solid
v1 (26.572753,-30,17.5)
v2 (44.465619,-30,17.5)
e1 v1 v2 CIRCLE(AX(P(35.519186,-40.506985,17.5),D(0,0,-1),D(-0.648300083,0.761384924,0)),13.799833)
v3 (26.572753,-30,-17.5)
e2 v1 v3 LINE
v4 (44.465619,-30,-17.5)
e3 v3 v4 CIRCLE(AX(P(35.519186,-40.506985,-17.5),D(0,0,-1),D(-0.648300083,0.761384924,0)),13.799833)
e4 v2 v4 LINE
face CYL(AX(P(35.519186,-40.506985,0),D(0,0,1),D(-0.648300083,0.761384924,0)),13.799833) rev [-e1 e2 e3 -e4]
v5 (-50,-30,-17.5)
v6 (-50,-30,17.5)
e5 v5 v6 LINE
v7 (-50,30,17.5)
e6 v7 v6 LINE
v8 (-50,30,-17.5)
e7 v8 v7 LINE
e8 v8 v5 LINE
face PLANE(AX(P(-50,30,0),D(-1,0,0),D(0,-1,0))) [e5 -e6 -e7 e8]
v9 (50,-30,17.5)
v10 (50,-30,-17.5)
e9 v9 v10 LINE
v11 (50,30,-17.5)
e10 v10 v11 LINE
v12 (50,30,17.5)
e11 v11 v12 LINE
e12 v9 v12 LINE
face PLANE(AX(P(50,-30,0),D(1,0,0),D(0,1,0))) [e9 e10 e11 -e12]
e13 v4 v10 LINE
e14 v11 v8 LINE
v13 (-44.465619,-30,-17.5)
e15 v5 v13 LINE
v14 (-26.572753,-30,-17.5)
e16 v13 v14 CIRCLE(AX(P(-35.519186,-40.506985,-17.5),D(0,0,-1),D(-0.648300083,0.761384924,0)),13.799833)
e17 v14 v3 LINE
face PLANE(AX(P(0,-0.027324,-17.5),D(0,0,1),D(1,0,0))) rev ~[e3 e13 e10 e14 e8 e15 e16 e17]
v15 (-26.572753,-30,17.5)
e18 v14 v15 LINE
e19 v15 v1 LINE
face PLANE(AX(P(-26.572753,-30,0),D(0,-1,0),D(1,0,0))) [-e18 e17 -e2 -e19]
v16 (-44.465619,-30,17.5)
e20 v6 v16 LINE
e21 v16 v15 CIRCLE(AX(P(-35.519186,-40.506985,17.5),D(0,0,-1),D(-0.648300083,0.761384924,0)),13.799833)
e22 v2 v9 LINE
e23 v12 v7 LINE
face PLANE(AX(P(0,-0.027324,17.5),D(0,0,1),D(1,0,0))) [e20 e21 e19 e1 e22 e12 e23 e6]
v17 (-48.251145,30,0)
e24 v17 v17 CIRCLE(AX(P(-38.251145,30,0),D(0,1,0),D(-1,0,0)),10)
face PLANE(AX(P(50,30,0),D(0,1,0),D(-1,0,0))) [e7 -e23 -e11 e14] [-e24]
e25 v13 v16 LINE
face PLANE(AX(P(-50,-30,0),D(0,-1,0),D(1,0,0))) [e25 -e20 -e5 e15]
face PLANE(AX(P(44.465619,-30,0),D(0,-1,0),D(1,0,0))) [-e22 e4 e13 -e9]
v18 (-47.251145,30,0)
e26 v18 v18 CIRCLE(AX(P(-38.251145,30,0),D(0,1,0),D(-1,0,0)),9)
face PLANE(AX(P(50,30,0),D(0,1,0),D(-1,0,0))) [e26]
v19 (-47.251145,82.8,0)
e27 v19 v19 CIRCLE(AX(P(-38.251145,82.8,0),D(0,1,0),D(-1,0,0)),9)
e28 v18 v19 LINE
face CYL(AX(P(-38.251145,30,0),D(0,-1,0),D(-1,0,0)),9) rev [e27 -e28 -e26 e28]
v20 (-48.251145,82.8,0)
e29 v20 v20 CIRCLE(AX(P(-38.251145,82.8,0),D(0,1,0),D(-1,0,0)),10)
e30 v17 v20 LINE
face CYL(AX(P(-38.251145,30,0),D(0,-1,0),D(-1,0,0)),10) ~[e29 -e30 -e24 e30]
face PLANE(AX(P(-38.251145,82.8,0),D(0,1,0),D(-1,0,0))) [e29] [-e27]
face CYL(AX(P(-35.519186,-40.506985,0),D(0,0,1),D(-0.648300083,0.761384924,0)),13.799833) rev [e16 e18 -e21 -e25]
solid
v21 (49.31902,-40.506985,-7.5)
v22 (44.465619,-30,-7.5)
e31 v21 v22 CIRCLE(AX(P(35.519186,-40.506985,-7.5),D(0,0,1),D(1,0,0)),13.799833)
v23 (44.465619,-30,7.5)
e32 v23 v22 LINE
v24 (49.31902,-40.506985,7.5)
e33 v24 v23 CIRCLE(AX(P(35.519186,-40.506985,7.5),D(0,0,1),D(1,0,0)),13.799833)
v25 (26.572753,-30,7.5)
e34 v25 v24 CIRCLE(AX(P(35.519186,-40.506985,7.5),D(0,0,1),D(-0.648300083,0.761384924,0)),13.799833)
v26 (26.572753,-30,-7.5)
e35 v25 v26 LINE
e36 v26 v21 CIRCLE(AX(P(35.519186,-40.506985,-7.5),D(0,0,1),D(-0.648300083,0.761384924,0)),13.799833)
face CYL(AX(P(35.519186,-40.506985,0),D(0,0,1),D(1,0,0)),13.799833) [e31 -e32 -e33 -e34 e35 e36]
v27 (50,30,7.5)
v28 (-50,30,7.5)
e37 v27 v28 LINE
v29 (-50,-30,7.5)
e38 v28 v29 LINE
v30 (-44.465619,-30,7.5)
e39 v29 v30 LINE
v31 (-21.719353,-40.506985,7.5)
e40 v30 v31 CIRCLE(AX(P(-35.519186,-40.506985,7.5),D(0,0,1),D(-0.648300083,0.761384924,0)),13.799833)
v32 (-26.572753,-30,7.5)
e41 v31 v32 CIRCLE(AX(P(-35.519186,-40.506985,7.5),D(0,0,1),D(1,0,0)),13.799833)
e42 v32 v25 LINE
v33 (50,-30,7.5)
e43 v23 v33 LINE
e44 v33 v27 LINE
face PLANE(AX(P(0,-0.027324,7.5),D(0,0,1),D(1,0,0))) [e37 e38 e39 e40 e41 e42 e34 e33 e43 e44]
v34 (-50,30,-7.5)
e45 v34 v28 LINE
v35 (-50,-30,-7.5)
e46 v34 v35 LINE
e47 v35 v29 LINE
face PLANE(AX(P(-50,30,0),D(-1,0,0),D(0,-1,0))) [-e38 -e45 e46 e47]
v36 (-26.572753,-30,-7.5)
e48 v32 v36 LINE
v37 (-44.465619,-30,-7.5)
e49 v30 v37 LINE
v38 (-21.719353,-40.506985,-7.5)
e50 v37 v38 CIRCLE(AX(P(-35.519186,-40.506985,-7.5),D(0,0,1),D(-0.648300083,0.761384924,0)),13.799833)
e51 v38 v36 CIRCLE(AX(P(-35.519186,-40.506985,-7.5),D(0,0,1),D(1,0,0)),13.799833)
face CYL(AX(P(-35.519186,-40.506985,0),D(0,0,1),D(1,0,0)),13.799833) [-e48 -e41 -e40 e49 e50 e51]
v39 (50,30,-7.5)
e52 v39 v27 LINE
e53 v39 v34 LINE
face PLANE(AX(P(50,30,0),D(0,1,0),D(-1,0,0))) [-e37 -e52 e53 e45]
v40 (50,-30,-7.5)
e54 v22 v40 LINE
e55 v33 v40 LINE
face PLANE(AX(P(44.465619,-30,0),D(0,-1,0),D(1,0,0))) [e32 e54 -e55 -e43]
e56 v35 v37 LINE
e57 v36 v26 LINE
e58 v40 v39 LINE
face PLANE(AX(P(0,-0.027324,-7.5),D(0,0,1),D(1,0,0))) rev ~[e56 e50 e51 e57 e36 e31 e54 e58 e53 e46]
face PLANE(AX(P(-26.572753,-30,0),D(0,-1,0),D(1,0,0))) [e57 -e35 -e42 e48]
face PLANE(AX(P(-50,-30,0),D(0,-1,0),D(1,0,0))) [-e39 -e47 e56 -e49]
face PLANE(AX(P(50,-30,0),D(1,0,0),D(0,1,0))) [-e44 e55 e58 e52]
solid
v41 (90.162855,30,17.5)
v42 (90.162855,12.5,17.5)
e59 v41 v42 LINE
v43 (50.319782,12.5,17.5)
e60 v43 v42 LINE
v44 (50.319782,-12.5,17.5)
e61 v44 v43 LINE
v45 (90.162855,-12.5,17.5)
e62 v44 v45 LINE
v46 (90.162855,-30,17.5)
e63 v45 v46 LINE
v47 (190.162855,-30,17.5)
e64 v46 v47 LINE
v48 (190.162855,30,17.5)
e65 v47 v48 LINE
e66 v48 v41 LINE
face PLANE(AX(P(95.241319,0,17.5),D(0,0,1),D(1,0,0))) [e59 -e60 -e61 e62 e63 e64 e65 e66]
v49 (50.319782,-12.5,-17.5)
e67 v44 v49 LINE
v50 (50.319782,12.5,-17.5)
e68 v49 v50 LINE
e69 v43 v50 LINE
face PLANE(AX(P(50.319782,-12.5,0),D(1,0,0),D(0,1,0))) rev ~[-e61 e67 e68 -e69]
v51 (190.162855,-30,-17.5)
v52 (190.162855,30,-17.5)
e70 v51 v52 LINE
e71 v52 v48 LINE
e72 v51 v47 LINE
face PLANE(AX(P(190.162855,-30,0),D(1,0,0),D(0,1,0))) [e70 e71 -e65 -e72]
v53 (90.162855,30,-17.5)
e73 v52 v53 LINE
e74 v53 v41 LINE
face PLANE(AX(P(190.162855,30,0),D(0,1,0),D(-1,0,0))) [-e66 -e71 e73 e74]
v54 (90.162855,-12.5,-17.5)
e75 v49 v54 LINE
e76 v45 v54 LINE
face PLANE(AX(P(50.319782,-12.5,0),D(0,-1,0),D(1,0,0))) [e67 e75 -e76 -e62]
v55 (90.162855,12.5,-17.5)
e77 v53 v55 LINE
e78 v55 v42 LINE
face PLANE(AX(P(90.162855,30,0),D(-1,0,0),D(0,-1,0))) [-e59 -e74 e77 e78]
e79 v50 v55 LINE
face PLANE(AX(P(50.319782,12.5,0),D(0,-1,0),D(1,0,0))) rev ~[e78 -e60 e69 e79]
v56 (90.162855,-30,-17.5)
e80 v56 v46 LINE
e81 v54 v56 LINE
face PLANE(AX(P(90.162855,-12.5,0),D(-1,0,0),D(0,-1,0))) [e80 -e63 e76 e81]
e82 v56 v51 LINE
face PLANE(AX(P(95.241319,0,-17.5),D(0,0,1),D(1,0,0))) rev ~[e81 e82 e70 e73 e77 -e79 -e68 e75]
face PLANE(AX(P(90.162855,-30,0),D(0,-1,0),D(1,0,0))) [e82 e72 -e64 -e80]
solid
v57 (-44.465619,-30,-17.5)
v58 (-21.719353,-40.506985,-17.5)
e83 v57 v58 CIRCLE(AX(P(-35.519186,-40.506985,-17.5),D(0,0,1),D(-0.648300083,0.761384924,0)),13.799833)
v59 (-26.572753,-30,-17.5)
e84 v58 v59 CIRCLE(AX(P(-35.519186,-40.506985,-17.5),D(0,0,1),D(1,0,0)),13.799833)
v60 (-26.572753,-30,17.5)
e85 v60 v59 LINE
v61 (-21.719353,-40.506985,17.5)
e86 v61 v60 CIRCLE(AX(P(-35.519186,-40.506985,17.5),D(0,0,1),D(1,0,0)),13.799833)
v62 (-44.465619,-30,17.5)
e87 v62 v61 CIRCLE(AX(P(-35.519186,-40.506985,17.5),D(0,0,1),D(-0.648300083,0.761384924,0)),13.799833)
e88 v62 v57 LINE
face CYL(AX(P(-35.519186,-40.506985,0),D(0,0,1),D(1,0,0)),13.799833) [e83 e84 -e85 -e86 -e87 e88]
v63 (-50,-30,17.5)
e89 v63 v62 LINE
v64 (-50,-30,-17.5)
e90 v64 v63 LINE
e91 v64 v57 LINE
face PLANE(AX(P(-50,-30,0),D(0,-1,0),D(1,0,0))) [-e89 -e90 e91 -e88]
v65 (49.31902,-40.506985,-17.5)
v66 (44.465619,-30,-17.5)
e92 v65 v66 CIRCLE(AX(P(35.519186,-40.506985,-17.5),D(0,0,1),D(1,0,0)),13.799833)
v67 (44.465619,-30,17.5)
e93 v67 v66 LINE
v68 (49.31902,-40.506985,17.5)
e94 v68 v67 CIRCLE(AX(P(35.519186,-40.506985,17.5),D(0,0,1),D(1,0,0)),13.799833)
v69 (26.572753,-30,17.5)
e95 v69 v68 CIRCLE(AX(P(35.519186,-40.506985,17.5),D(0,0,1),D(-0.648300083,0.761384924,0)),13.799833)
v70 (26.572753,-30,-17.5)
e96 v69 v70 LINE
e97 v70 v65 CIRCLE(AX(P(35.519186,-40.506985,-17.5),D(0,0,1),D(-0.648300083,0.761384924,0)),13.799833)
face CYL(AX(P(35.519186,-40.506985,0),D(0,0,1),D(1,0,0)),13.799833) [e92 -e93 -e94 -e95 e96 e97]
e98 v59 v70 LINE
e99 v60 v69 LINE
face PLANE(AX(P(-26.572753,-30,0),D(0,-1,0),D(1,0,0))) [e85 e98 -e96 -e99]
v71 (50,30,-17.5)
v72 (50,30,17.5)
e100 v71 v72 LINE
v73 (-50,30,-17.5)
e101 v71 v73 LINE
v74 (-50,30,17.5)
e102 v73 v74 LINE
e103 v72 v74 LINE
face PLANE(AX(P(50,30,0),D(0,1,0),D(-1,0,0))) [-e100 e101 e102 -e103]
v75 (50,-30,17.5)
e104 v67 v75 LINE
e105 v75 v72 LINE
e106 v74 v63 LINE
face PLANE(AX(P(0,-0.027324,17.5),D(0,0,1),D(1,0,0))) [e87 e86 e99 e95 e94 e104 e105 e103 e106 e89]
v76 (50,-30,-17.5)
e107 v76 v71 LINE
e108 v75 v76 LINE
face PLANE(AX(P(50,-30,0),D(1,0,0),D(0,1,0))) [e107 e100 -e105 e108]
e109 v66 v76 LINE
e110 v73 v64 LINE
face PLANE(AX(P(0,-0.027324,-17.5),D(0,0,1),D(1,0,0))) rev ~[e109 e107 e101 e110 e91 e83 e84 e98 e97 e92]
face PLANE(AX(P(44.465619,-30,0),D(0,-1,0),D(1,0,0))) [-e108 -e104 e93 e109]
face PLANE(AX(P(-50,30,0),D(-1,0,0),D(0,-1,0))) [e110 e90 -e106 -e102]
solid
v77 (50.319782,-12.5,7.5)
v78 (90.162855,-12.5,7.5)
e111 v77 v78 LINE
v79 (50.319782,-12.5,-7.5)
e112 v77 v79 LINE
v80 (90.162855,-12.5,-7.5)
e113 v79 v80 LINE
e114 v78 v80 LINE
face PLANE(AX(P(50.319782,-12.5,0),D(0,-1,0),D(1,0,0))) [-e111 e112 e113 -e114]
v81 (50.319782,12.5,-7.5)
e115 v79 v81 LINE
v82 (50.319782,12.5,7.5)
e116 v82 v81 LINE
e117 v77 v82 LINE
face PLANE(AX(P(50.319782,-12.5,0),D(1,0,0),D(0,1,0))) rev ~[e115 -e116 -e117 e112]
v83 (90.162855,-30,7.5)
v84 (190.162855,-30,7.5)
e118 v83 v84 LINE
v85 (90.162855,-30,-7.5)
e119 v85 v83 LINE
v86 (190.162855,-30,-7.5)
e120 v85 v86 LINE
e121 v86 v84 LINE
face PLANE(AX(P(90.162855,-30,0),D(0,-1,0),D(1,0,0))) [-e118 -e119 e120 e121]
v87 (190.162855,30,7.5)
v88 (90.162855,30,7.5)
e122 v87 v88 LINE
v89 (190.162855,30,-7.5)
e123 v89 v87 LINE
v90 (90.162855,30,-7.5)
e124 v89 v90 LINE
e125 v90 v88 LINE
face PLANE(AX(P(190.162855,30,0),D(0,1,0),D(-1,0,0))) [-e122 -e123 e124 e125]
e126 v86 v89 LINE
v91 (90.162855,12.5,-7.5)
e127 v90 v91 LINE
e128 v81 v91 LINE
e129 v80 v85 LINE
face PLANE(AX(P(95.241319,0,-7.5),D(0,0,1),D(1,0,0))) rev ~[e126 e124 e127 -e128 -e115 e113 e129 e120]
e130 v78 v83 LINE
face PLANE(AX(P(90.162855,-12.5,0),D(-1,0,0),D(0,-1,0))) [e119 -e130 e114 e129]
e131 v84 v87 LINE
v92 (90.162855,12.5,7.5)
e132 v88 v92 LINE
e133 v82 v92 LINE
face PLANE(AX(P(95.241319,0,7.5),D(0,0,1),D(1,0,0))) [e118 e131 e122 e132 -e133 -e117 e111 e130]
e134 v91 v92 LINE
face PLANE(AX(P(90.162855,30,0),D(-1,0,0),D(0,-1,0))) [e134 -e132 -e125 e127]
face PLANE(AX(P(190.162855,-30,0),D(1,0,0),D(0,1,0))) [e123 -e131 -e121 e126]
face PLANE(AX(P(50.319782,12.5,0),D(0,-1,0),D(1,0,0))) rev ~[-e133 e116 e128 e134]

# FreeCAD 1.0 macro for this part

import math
import FreeCAD as App
import Part
import Sketcher

V = App.Vector

doc = App.newDocument("Part")
body = doc.addObject("PartDesign::Body", "Body")

# Sketch on XY plane
sketch1 = doc.addObject("Sketcher::SketchObject", "Sketch")
body.addObject(sketch1)
sketch1.AttachmentSupport = (doc.XY_Plane, [""])
sketch1.MapMode = "FlatFace"
sketch1.addGeometry([
    Part.LineSegment(V(50, -30, 0), V(50, 30, 0)),  # 0
    Part.LineSegment(V(50, 30, 0), V(-50, 30, 0)),  # 1
    Part.LineSegment(V(-50, 30, 0), V(-50, -30, 0)),  # 2
    Part.LineSegment(V(-50, -30, 0), V(-44, -30, 0)),  # 3
    Part.ArcOfCircle(Part.Circle(V(-36, -41, 0), V(0, 0, 1), 14), math.radians(50), math.radians(130)),  # 4
    Part.LineSegment(V(-27, -30, 0), V(27, -30, 0)),  # 5
    Part.ArcOfCircle(Part.Circle(V(36, -41, 0), V(0, 0, 1), 14), math.radians(50), math.radians(130)),  # 6
    Part.LineSegment(V(44, -30, 0), V(50, -30, 0)),  # 7
], False)
sketch1.addConstraint([
    Sketcher.Constraint("Coincident", 0, 2, 1, 1),
    Sketcher.Constraint("Coincident", 1, 2, 2, 1),
    Sketcher.Constraint("Coincident", 2, 2, 3, 1),
    Sketcher.Constraint("Coincident", 3, 2, 4, 2),
    Sketcher.Constraint("Coincident", 4, 1, 5, 1),
    Sketcher.Constraint("Coincident", 5, 2, 6, 2),
    Sketcher.Constraint("Coincident", 6, 1, 7, 1),
    Sketcher.Constraint("Coincident", 7, 2, 0, 1),
    Sketcher.Constraint("Vertical", 0),
    Sketcher.Constraint("Horizontal", 1),
    Sketcher.Constraint("Vertical", 2),
    Sketcher.Constraint("Horizontal", 3),
    Sketcher.Constraint("Horizontal", 5),
    Sketcher.Constraint("Horizontal", 7),
    Sketcher.Constraint("Equal", 4, 6),
    Sketcher.Constraint("Symmetric", 0, 2, 2, 2, -1, 1),
    Sketcher.Constraint("Symmetric", 4, 3, 6, 3, -2),
    Sketcher.Constraint("Horizontal", 3, 2, 4, 1),
    Sketcher.Constraint("Horizontal", 5, 2, 6, 1),
    Sketcher.Constraint("DistanceX", 1, 2, 1, 1, 100.0),
    Sketcher.Constraint("DistanceY", 0, 1, 0, 2, 60.0),
    Sketcher.Constraint("Radius", 4, 13.799833),
    Sketcher.Constraint("DistanceX", 3, 1, 3, 2, 5.534381),
    Sketcher.Constraint("DistanceX", 5, 1, 5, 2, 53.145507),
])
pad1 = doc.addObject("PartDesign::Pad", "Pad")
body.addObject(pad1)
pad1.Profile = sketch1
pad1.Length = 35
pad1.Midplane = True

# Sketch on XZ plane
sketch2 = doc.addObject("Sketcher::SketchObject", "Sketch001")
body.addObject(sketch2)
sketch2.AttachmentSupport = (doc.XZ_Plane, [""])
sketch2.MapMode = "FlatFace"
sketch2.AttachmentOffset = App.Placement(V(0, 0, -30), App.Rotation())
sketch2.addGeometry([
    Part.Circle(V(-38, 0, 0), V(0, 0, 1), 10),
    Part.Circle(V(-38, 0, 0), V(0, 0, 1), 9),
], False)
sketch2.addConstraint([
    Sketcher.Constraint("Coincident", 1, 3, 0, 3),
    Sketcher.Constraint("PointOnObject", 0, 3, -1),
    Sketcher.Constraint("Diameter", 0, 20.0),
    Sketcher.Constraint("Diameter", 1, 18.0),
    Sketcher.Constraint("DistanceX", 0, 3, -1, 1, 38.251145),
])
pad2 = doc.addObject("PartDesign::Pad", "Pad001")
body.addObject(pad2)
pad2.Profile = sketch2
pad2.Length = 52.8
pad2.Reversed = True
body2 = doc.addObject("PartDesign::Body", "Body001")

# Sketch on XY plane
sketch3 = doc.addObject("Sketcher::SketchObject", "Sketch002")
body2.addObject(sketch3)
sketch3.AttachmentSupport = (doc.getObject("XY_Plane001"), [""])
sketch3.MapMode = "FlatFace"
sketch3.addGeometry([
    Part.LineSegment(V(50, -30, 0), V(50, 30, 0)),  # 0
    Part.LineSegment(V(50, 30, 0), V(-50, 30, 0)),  # 1
    Part.LineSegment(V(-50, 30, 0), V(-50, -30, 0)),  # 2
    Part.LineSegment(V(-50, -30, 0), V(-44, -30, 0)),  # 3
    Part.ArcOfCircle(Part.Circle(V(-36, -41, 0), V(0, 0, 1), 14), math.radians(130), math.radians(360)),  # 4
    Part.ArcOfCircle(Part.Circle(V(-36, -41, 0), V(0, 0, 1), 14), math.radians(0), math.radians(50)),  # 5
    Part.LineSegment(V(-27, -30, 0), V(27, -30, 0)),  # 6
    Part.ArcOfCircle(Part.Circle(V(36, -41, 0), V(0, 0, 1), 14), math.radians(130), math.radians(360)),  # 7
    Part.ArcOfCircle(Part.Circle(V(36, -41, 0), V(0, 0, 1), 14), math.radians(0), math.radians(50)),  # 8
    Part.LineSegment(V(44, -30, 0), V(50, -30, 0)),  # 9
], False)
sketch3.addConstraint([
    Sketcher.Constraint("Coincident", 0, 2, 1, 1),
    Sketcher.Constraint("Coincident", 1, 2, 2, 1),
    Sketcher.Constraint("Coincident", 2, 2, 3, 1),
    Sketcher.Constraint("Coincident", 3, 2, 4, 1),
    Sketcher.Constraint("Tangent", 4, 2, 5, 1),
    Sketcher.Constraint("Coincident", 5, 2, 6, 1),
    Sketcher.Constraint("Coincident", 6, 2, 7, 1),
    Sketcher.Constraint("Tangent", 7, 2, 8, 1),
    Sketcher.Constraint("Coincident", 8, 2, 9, 1),
    Sketcher.Constraint("Coincident", 9, 2, 0, 1),
    Sketcher.Constraint("Vertical", 0),
    Sketcher.Constraint("Horizontal", 1),
    Sketcher.Constraint("Vertical", 2),
    Sketcher.Constraint("Horizontal", 3),
    Sketcher.Constraint("Horizontal", 6),
    Sketcher.Constraint("Horizontal", 9),
    Sketcher.Constraint("Equal", 4, 5),
    Sketcher.Constraint("Equal", 5, 7),
    Sketcher.Constraint("Equal", 7, 8),
    Sketcher.Constraint("Symmetric", 0, 2, 2, 2, -1, 1),
    Sketcher.Constraint("Symmetric", 4, 3, 7, 3, -2),
    Sketcher.Constraint("Horizontal", 8, 3, 4, 2),
    Sketcher.Constraint("Horizontal", 3, 2, 5, 2),
    Sketcher.Constraint("Horizontal", 4, 2, 7, 2),
    Sketcher.Constraint("Horizontal", 6, 2, 8, 2),
    Sketcher.Constraint("DistanceX", 1, 2, 1, 1, 100.0),
    Sketcher.Constraint("DistanceY", 0, 1, 0, 2, 60.0),
    Sketcher.Constraint("Radius", 4, 13.799833),
    Sketcher.Constraint("DistanceX", 3, 1, 3, 2, 5.534381),
    Sketcher.Constraint("DistanceX", 5, 2, 4, 2, 4.8534),
])
pad3 = doc.addObject("PartDesign::Pad", "Pad002")
body2.addObject(pad3)
pad3.Profile = sketch3
pad3.Length = 15
pad3.Midplane = True
body3 = doc.addObject("PartDesign::Body", "Body002")

# Sketch on XY plane
sketch4 = doc.addObject("Sketcher::SketchObject", "Sketch003")
body3.addObject(sketch4)
sketch4.AttachmentSupport = (doc.getObject("XY_Plane002"), [""])
sketch4.MapMode = "FlatFace"
sketch4.addGeometry([
    Part.LineSegment(V(90, -12, 0), V(90, -30, 0)),  # 0
    Part.LineSegment(V(90, -30, 0), V(190, -30, 0)),  # 1
    Part.LineSegment(V(190, -30, 0), V(190, 30, 0)),  # 2
    Part.LineSegment(V(190, 30, 0), V(90, 30, 0)),  # 3
    Part.LineSegment(V(90, 30, 0), V(90, 12, 0)),  # 4
    Part.LineSegment(V(90, 12, 0), V(50, 12, 0)),  # 5
    Part.LineSegment(V(50, 12, 0), V(50, -12, 0)),  # 6
    Part.LineSegment(V(50, -12, 0), V(90, -12, 0)),  # 7
], False)
sketch4.addConstraint([
    Sketcher.Constraint("Coincident", 0, 2, 1, 1),
    Sketcher.Constraint("Coincident", 1, 2, 2, 1),
    Sketcher.Constraint("Coincident", 2, 2, 3, 1),
    Sketcher.Constraint("Coincident", 3, 2, 4, 1),
    Sketcher.Constraint("Coincident", 4, 2, 5, 1),
    Sketcher.Constraint("Coincident", 5, 2, 6, 1),
    Sketcher.Constraint("Coincident", 6, 2, 7, 1),
    Sketcher.Constraint("Coincident", 7, 2, 0, 1),
    Sketcher.Constraint("Vertical", 0),
    Sketcher.Constraint("Horizontal", 1),
    Sketcher.Constraint("Vertical", 2),
    Sketcher.Constraint("Horizontal", 3),
    Sketcher.Constraint("Vertical", 4),
    Sketcher.Constraint("Horizontal", 5),
    Sketcher.Constraint("Vertical", 6),
    Sketcher.Constraint("Horizontal", 7),
    Sketcher.Constraint("Symmetric", 0, 2, 3, 2, -1),
    Sketcher.Constraint("Equal", 0, 4),
    Sketcher.Constraint("DistanceX", 1, 1, 1, 2, 100.0),
    Sketcher.Constraint("DistanceY", 2, 1, 2, 2, 60.0),
    Sketcher.Constraint("DistanceY", 6, 2, 6, 1, 25.0),
    Sketcher.Constraint("DistanceX", 5, 2, 5, 1, 39.843073),
    Sketcher.Constraint("DistanceX", -1, 1, 5, 2, 50.319782),
])
pad4 = doc.addObject("PartDesign::Pad", "Pad003")
body3.addObject(pad4)
pad4.Profile = sketch4
pad4.Length = 15
pad4.Midplane = True
body4 = doc.addObject("PartDesign::Body", "Body003")

# Sketch on XY plane
sketch5 = doc.addObject("Sketcher::SketchObject", "Sketch004")
body4.addObject(sketch5)
sketch5.AttachmentSupport = (doc.getObject("XY_Plane003"), [""])
sketch5.MapMode = "FlatFace"
sketch5.addGeometry([
    Part.LineSegment(V(50, -30, 0), V(50, 30, 0)),  # 0
    Part.LineSegment(V(50, 30, 0), V(-50, 30, 0)),  # 1
    Part.LineSegment(V(-50, 30, 0), V(-50, -30, 0)),  # 2
    Part.LineSegment(V(-50, -30, 0), V(-44, -30, 0)),  # 3
    Part.ArcOfCircle(Part.Circle(V(-36, -41, 0), V(0, 0, 1), 14), math.radians(130), math.radians(360)),  # 4
    Part.ArcOfCircle(Part.Circle(V(-36, -41, 0), V(0, 0, 1), 14), math.radians(0), math.radians(50)),  # 5
    Part.LineSegment(V(-27, -30, 0), V(27, -30, 0)),  # 6
    Part.ArcOfCircle(Part.Circle(V(36, -41, 0), V(0, 0, 1), 14), math.radians(130), math.radians(360)),  # 7
    Part.ArcOfCircle(Part.Circle(V(36, -41, 0), V(0, 0, 1), 14), math.radians(0), math.radians(50)),  # 8
    Part.LineSegment(V(44, -30, 0), V(50, -30, 0)),  # 9
], False)
sketch5.addConstraint([
    Sketcher.Constraint("Coincident", 0, 2, 1, 1),
    Sketcher.Constraint("Coincident", 1, 2, 2, 1),
    Sketcher.Constraint("Coincident", 2, 2, 3, 1),
    Sketcher.Constraint("Coincident", 3, 2, 4, 1),
    Sketcher.Constraint("Tangent", 4, 2, 5, 1),
    Sketcher.Constraint("Coincident", 5, 2, 6, 1),
    Sketcher.Constraint("Coincident", 6, 2, 7, 1),
    Sketcher.Constraint("Tangent", 7, 2, 8, 1),
    Sketcher.Constraint("Coincident", 8, 2, 9, 1),
    Sketcher.Constraint("Coincident", 9, 2, 0, 1),
    Sketcher.Constraint("Vertical", 0),
    Sketcher.Constraint("Horizontal", 1),
    Sketcher.Constraint("Vertical", 2),
    Sketcher.Constraint("Horizontal", 3),
    Sketcher.Constraint("Horizontal", 6),
    Sketcher.Constraint("Horizontal", 9),
    Sketcher.Constraint("Equal", 4, 5),
    Sketcher.Constraint("Equal", 5, 7),
    Sketcher.Constraint("Equal", 7, 8),
    Sketcher.Constraint("Symmetric", 0, 2, 2, 2, -1, 1),
    Sketcher.Constraint("Symmetric", 4, 3, 7, 3, -2),
    Sketcher.Constraint("Horizontal", 8, 3, 4, 2),
    Sketcher.Constraint("Horizontal", 3, 2, 5, 2),
    Sketcher.Constraint("Horizontal", 4, 2, 7, 2),
    Sketcher.Constraint("Horizontal", 6, 2, 8, 2),
    Sketcher.Constraint("DistanceX", 1, 2, 1, 1, 100.0),
    Sketcher.Constraint("DistanceY", 0, 1, 0, 2, 60.0),
    Sketcher.Constraint("Radius", 4, 13.799833),
    Sketcher.Constraint("DistanceX", 3, 1, 3, 2, 5.534381),
    Sketcher.Constraint("DistanceX", 5, 2, 4, 2, 4.8534),
])
pad5 = doc.addObject("PartDesign::Pad", "Pad004")
body4.addObject(pad5)
pad5.Profile = sketch5
pad5.Length = 35
pad5.Midplane = True
body5 = doc.addObject("PartDesign::Body", "Body004")

# Sketch on XY plane
sketch6 = doc.addObject("Sketcher::SketchObject", "Sketch005")
body5.addObject(sketch6)
sketch6.AttachmentSupport = (doc.getObject("XY_Plane004"), [""])
sketch6.MapMode = "FlatFace"
sketch6.addGeometry([
    Part.LineSegment(V(90, -12, 0), V(90, -30, 0)),  # 0
    Part.LineSegment(V(90, -30, 0), V(190, -30, 0)),  # 1
    Part.LineSegment(V(190, -30, 0), V(190, 30, 0)),  # 2
    Part.LineSegment(V(190, 30, 0), V(90, 30, 0)),  # 3
    Part.LineSegment(V(90, 30, 0), V(90, 12, 0)),  # 4
    Part.LineSegment(V(90, 12, 0), V(50, 12, 0)),  # 5
    Part.LineSegment(V(50, 12, 0), V(50, -12, 0)),  # 6
    Part.LineSegment(V(50, -12, 0), V(90, -12, 0)),  # 7
], False)
sketch6.addConstraint([
    Sketcher.Constraint("Coincident", 0, 2, 1, 1),
    Sketcher.Constraint("Coincident", 1, 2, 2, 1),
    Sketcher.Constraint("Coincident", 2, 2, 3, 1),
    Sketcher.Constraint("Coincident", 3, 2, 4, 1),
    Sketcher.Constraint("Coincident", 4, 2, 5, 1),
    Sketcher.Constraint("Coincident", 5, 2, 6, 1),
    Sketcher.Constraint("Coincident", 6, 2, 7, 1),
    Sketcher.Constraint("Coincident", 7, 2, 0, 1),
    Sketcher.Constraint("Vertical", 0),
    Sketcher.Constraint("Horizontal", 1),
    Sketcher.Constraint("Vertical", 2),
    Sketcher.Constraint("Horizontal", 3),
    Sketcher.Constraint("Vertical", 4),
    Sketcher.Constraint("Horizontal", 5),
    Sketcher.Constraint("Vertical", 6),
    Sketcher.Constraint("Horizontal", 7),
    Sketcher.Constraint("Symmetric", 0, 2, 3, 2, -1),
    Sketcher.Constraint("Equal", 0, 4),
    Sketcher.Constraint("DistanceX", 1, 1, 1, 2, 100.0),
    Sketcher.Constraint("DistanceY", 2, 1, 2, 2, 60.0),
    Sketcher.Constraint("DistanceY", 6, 2, 6, 1, 25.0),
    Sketcher.Constraint("DistanceX", 5, 2, 5, 1, 39.843073),
    Sketcher.Constraint("DistanceX", -1, 1, 5, 2, 50.319782),
])
pad6 = doc.addObject("PartDesign::Pad", "Pad005")
body5.addObject(pad6)
pad6.Profile = sketch6
pad6.Length = 35
pad6.Midplane = True

doc.recompute()
